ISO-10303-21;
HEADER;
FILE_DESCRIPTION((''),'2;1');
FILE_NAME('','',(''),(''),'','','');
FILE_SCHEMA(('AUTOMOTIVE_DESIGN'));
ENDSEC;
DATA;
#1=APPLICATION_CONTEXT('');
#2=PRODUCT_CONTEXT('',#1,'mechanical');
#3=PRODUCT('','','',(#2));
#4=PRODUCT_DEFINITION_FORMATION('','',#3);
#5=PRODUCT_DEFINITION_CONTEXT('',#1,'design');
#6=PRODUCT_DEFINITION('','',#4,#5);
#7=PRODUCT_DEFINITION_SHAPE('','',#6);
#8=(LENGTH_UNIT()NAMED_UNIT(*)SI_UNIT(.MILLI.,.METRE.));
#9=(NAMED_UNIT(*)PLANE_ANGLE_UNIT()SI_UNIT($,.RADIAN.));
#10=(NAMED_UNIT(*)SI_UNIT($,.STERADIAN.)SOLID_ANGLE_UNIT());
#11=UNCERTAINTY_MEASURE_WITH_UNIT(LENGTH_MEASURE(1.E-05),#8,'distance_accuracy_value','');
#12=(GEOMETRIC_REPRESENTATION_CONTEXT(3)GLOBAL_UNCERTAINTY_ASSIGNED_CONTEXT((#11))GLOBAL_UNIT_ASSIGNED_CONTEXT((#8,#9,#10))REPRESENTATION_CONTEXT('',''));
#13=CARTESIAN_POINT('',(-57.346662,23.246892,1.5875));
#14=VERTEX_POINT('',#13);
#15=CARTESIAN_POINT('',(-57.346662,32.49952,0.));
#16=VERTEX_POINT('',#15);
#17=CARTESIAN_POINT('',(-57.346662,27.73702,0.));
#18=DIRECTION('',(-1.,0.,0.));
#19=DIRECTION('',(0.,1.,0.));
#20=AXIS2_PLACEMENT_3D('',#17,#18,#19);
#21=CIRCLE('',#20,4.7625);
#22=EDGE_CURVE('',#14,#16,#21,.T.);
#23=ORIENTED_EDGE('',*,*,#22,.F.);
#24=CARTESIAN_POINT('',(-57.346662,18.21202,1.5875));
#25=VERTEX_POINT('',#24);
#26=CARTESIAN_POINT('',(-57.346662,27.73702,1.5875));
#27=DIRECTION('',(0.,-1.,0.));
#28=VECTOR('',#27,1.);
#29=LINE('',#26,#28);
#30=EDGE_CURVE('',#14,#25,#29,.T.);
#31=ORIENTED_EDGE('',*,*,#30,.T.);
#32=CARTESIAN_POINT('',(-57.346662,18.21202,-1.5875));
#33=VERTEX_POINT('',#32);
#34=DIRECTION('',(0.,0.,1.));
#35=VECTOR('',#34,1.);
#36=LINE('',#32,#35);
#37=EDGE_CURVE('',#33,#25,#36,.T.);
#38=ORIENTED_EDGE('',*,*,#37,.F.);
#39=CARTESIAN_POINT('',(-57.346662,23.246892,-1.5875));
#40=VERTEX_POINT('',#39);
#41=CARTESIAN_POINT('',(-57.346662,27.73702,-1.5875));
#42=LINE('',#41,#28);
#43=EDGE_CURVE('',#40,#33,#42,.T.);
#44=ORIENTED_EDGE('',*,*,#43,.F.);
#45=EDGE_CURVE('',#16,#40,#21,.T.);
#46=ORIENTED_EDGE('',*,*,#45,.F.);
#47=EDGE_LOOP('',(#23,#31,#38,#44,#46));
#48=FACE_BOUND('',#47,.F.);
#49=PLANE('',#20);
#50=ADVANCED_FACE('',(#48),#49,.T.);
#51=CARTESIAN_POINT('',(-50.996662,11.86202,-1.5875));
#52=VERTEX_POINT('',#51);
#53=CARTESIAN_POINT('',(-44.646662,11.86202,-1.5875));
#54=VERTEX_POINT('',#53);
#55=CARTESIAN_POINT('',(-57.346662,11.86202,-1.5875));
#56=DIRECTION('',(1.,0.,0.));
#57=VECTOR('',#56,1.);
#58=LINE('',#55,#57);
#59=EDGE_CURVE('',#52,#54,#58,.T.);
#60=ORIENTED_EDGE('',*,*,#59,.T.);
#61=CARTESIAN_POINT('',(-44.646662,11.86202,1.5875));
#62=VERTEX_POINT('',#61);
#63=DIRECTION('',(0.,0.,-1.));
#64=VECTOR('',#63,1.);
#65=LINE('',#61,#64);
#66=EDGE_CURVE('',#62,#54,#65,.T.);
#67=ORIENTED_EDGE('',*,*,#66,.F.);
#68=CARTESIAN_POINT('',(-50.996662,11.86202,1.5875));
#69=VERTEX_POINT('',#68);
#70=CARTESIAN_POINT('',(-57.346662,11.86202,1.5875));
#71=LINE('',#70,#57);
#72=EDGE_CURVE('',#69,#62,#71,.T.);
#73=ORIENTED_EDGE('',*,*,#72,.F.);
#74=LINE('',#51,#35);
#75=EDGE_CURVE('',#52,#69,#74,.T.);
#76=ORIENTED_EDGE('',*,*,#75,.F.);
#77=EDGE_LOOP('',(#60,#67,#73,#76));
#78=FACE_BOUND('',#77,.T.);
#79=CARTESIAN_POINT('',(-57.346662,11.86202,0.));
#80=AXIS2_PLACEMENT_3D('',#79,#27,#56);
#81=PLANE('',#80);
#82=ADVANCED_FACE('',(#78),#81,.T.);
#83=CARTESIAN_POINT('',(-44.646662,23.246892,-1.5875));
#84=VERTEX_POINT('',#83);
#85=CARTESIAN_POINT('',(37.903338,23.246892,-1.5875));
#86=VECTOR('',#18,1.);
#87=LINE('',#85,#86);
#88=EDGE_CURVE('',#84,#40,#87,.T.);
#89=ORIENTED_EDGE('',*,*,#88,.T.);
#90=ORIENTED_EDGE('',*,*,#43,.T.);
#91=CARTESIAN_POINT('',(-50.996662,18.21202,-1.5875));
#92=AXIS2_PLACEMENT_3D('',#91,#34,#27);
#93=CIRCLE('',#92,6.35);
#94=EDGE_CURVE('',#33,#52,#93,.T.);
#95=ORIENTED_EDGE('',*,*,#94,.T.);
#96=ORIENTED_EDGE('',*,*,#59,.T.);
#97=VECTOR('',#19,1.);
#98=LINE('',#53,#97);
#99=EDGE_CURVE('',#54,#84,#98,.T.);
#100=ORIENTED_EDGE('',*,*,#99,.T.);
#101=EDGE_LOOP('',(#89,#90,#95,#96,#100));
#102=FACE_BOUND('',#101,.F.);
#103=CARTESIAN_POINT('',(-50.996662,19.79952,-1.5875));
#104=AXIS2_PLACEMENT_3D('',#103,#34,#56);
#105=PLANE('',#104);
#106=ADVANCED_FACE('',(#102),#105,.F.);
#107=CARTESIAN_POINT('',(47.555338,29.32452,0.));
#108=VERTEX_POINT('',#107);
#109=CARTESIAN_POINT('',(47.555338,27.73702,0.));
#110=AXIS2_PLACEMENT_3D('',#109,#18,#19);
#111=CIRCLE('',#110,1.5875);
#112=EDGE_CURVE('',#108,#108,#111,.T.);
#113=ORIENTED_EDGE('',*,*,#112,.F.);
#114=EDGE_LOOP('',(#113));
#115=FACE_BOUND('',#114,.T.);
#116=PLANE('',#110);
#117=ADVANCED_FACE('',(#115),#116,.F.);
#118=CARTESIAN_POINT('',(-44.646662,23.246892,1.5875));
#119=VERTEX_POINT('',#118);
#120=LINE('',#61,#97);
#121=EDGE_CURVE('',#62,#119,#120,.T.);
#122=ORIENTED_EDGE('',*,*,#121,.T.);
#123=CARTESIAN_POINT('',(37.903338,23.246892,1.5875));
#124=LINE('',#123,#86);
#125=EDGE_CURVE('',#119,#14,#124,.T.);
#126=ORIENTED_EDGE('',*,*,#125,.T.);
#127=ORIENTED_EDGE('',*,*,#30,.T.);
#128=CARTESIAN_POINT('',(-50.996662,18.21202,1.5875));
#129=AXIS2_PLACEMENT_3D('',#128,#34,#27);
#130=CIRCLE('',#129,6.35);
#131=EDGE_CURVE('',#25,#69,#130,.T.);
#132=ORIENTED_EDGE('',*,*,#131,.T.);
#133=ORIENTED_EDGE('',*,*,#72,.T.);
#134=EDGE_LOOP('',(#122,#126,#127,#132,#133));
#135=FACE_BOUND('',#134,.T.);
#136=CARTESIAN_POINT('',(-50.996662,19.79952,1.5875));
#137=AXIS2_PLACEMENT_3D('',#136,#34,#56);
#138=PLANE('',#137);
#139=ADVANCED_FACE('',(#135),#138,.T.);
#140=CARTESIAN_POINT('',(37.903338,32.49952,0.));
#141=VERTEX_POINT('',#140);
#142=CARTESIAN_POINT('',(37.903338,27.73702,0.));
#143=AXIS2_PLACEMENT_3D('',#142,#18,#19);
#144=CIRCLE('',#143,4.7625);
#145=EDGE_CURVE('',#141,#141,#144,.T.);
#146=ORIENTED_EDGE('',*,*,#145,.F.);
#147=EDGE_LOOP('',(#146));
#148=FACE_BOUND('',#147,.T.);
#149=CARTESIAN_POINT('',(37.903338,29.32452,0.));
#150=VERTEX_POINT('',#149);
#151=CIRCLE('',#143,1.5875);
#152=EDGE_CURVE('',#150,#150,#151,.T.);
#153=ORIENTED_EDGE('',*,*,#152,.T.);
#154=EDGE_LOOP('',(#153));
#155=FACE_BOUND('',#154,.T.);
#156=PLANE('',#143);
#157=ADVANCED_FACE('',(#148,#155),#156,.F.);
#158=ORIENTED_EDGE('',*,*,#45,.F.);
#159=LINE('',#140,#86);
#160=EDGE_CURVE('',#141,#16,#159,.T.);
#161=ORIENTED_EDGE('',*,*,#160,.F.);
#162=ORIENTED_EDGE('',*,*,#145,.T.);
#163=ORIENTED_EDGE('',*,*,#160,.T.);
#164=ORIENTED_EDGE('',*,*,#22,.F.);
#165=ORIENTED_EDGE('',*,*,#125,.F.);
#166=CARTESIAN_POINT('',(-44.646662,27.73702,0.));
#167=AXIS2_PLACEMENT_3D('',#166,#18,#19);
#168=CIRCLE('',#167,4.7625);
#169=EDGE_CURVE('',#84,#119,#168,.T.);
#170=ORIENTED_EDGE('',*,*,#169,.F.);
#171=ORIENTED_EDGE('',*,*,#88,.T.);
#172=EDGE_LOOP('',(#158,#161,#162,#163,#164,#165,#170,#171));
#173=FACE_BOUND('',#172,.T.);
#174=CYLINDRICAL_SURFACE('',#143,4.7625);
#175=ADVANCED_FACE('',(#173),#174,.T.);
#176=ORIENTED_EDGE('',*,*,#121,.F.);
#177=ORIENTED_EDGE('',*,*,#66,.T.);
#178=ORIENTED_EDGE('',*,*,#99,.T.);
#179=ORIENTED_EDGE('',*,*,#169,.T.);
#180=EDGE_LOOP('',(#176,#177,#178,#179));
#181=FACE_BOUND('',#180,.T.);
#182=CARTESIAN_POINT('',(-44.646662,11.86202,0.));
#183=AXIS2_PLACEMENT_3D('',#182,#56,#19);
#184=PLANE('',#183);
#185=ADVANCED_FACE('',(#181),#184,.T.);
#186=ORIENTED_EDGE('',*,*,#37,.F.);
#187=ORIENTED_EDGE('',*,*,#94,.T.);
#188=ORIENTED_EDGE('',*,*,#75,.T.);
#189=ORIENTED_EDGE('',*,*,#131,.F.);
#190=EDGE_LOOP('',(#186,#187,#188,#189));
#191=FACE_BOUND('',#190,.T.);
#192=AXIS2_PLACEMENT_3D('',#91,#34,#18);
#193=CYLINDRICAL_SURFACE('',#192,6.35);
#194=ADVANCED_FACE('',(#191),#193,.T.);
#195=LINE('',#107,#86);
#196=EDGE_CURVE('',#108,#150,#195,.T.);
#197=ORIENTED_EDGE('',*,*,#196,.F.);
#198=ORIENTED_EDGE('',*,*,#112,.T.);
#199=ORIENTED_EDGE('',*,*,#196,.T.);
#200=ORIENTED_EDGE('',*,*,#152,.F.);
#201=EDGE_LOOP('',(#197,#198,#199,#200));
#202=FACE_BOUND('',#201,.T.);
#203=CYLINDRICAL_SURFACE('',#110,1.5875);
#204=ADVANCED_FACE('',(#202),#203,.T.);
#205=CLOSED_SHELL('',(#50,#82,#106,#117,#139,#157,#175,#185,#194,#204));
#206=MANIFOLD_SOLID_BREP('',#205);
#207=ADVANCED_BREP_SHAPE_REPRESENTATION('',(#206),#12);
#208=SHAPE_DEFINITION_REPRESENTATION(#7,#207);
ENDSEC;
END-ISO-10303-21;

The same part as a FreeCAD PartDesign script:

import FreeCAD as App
import Part
import Sketcher
from FreeCAD import Vector
Q = App.Units.Quantity


def edges_at(feature, points):
    """Names of the edges that pass closest to the given points."""
    edges = feature.Shape.Edges
    near = lambda p: min(range(len(edges)), key=lambda i: edges[i].distToShape(Part.Vertex(*p))[0])
    return sorted({f"Edge{near(p) + 1}" for p in points})


def add_polygon(sketch, points):
    """Adds a closed chain of lines whose ends are joined by coincident constraints."""
    first, n = sketch.GeometryCount, len(points)
    for a, b in zip(points, points[1:] + points[:1]):
        sketch.addGeometry(Part.LineSegment(App.Vector(*a, 0), App.Vector(*b, 0)), False)
    for i in range(n):
        sketch.addConstraint(Sketcher.Constraint("Coincident", first + i, 2, first + (i + 1) % n, 1))

doc = App.newDocument("Part")
body = doc.addObject("PartDesign::Body", "Body")

# Sketch on XY plane
sketch1 = body.newObject("Sketcher::SketchObject", "Sketch")
sketch1.AttachmentSupport = (doc.getObject("XY_Plane"), [""])
sketch1.MapMode = "FlatFace"
add_polygon(sketch1, [(-57.3, 32.5), (-57.3, 27.7), (47.6, 27.7), (47.6, 29.3), (37.9, 29.3), (37.9, 32.5)])  # lines 0-5
sketch1.addGeometry(Part.LineSegment(Vector(47.6, 27.7, 0), Vector(-57.3, 27.7, 0)), True)  # axis
sketch1.addConstraint(Sketcher.Constraint("Vertical", 0))
sketch1.addConstraint(Sketcher.Constraint("Horizontal", 1))
sketch1.addConstraint(Sketcher.Constraint("Vertical", 2))
sketch1.addConstraint(Sketcher.Constraint("Horizontal", 3))
sketch1.addConstraint(Sketcher.Constraint("Vertical", 4))
sketch1.addConstraint(Sketcher.Constraint("Horizontal", 5))
sketch1.addConstraint(Sketcher.Constraint("Horizontal", 6))
sketch1.addConstraint(Sketcher.Constraint("Coincident", 6, 1, 1, 2))
sketch1.addConstraint(Sketcher.Constraint("Vertical", 5, 2, 6, 2))
sketch1.addConstraint(Sketcher.Constraint("DistanceX", 1, 1, 1, 2, Q("4.13 in")))
sketch1.addConstraint(Sketcher.Constraint("DistanceX", 3, 2, 3, 1, Q("0.38 in")))
sketch1.addConstraint(Sketcher.Constraint("DistanceY", 0, 2, 0, 1, Q("0.1875 in")))
sketch1.addConstraint(Sketcher.Constraint("DistanceY", 2, 1, 2, 2, Q("0.0625 in")))
sketch1.addConstraint(Sketcher.Constraint("DistanceY", -1, 1, 0, 2, Q("27.73702 mm")))
sketch1.addConstraint(Sketcher.Constraint("DistanceX", 0, 2, -1, 1, Q("57.346662 mm")))
revolution = body.newObject("PartDesign::Revolution", "Revolution")
revolution.Profile = sketch1
revolution.ReferenceAxis = (sketch1, ["Axis0"])
revolution.Angle = 360

# Sketch on XY plane
sketch2 = body.newObject("Sketcher::SketchObject", "Sketch001")
sketch2.AttachmentSupport = (doc.getObject("XY_Plane"), [""])
sketch2.MapMode = "FlatFace"
add_polygon(sketch2, [(-45, 28), (-57, 28), (-57, 12), (-45, 12)])  # lines 0-3
sketch2.addConstraint(Sketcher.Constraint("Horizontal", 0))
sketch2.addConstraint(Sketcher.Constraint("Vertical", 1))
sketch2.addConstraint(Sketcher.Constraint("Horizontal", 2))
sketch2.addConstraint(Sketcher.Constraint("Vertical", 3))
sketch2.addConstraint(Sketcher.Constraint("DistanceX", 0, 2, 0, 1, Q("0.5 in")))
sketch2.addConstraint(Sketcher.Constraint("DistanceY", 1, 2, 1, 1, Q("0.625 in")))
sketch2.addConstraint(Sketcher.Constraint("DistanceY", -1, 1, 0, 2, Q("27.73702 mm")))
sketch2.addConstraint(Sketcher.Constraint("DistanceX", 0, 2, -1, 1, Q("57.346662 mm")))
pad1 = body.newObject("PartDesign::Pad", "Pad")
pad1.Profile = sketch2
pad1.Length = Q("0.125 in")
pad1.Midplane = True
doc.recompute()

fillet = body.newObject("PartDesign::Fillet", "Fillet")
fillet.Base = (pad1, edges_at(pad1, [(-57.347, 11.862, 0)]))
fillet.Radius = Q("0.25 in")

doc.recompute()
